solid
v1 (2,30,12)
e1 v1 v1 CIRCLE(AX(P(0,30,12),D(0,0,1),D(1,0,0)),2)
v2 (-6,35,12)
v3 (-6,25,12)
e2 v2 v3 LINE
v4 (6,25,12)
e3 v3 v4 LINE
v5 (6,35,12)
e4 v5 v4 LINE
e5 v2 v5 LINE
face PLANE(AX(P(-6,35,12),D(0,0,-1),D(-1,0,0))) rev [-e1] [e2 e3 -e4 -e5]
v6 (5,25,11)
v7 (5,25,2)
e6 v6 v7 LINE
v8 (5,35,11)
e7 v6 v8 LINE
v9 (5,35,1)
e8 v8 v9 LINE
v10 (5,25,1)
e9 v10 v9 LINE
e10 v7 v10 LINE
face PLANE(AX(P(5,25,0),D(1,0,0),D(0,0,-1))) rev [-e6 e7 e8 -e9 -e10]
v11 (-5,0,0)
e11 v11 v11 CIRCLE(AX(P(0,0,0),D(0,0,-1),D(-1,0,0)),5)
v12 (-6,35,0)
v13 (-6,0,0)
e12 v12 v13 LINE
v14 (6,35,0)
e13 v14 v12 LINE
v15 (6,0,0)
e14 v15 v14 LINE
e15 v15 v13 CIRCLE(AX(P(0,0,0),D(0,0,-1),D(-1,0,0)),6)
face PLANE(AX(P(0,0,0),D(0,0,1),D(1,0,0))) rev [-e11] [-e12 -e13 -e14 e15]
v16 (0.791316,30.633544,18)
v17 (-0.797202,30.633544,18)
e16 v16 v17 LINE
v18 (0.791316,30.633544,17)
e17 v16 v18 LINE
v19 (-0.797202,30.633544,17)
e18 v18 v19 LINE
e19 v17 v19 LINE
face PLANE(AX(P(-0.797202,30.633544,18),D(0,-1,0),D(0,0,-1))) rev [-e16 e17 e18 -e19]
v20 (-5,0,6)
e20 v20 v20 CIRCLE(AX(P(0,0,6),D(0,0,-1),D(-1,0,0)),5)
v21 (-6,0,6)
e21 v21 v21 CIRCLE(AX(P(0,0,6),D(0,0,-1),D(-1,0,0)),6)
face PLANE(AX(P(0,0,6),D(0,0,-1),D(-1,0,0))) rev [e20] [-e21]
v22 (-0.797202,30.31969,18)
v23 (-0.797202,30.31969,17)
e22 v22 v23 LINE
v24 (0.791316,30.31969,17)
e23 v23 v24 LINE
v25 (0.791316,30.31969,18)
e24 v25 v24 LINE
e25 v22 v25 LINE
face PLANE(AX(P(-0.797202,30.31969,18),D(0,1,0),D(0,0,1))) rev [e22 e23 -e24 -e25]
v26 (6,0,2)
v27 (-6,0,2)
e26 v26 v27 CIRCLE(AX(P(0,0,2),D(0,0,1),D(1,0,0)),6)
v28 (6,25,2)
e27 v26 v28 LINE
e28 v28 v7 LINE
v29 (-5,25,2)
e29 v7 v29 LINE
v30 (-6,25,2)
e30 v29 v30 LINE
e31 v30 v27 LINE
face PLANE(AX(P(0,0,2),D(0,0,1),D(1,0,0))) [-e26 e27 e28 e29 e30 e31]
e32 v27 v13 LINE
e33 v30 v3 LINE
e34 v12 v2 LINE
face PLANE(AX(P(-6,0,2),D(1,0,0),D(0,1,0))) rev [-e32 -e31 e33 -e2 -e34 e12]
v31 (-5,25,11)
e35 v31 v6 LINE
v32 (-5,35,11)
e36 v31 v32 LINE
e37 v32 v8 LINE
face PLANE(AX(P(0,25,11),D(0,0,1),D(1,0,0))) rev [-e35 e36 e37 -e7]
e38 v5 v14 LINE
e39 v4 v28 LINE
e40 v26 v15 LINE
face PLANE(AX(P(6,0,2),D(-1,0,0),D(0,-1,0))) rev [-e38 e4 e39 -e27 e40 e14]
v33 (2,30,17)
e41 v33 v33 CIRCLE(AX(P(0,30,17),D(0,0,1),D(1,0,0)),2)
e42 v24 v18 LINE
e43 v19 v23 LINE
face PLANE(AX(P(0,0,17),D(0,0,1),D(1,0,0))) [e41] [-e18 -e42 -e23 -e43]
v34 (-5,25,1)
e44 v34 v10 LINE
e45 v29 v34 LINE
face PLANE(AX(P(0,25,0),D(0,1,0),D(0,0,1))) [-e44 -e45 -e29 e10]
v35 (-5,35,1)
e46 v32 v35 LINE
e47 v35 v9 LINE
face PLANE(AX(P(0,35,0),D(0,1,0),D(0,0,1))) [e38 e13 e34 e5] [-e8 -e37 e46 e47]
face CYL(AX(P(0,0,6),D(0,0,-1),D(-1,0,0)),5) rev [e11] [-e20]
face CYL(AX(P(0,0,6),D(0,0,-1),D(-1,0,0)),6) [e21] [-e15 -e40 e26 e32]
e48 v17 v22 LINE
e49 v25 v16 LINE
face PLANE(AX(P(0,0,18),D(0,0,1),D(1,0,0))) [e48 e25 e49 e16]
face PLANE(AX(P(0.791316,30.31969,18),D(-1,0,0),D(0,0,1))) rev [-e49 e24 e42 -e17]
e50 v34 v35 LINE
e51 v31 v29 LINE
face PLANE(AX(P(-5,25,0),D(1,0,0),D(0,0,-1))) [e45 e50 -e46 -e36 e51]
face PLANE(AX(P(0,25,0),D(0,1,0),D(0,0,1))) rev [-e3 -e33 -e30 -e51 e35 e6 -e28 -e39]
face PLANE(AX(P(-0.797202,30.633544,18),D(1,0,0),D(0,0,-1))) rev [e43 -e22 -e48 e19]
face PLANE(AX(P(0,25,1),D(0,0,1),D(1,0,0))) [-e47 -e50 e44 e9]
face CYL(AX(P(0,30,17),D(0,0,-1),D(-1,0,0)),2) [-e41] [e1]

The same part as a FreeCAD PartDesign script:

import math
import FreeCAD as App
import Part
import Sketcher
from FreeCAD import Vector

doc = App.newDocument("Part")
body = doc.addObject("PartDesign::Body", "Body")

sketch1 = body.newObject("Sketcher::SketchObject", "Sketch")
sketch1.AttachmentSupport = (doc.getObject("XY_Plane"), [""])
sketch1.MapMode = "FlatFace"
sketch1.addGeometry([
    Part.ArcOfCircle(Part.Circle(Vector(0, 0, 0), Vector(0, 0, 1), 6), math.radians(0), math.radians(180)),
    Part.LineSegment(Vector(6, 0, 0), Vector(6, 25, 0)),
    Part.LineSegment(Vector(6, 25, 0), Vector(-6, 25, 0)),
    Part.LineSegment(Vector(-6, 25, 0), Vector(-6, 0, 0)),
], False)
sketch1.addConstraint([
    Sketcher.Constraint("Tangent", 0, 1, 1, 1),
    Sketcher.Constraint("Coincident", 1, 2, 2, 1),
    Sketcher.Constraint("Coincident", 2, 2, 3, 1),
    Sketcher.Constraint("Tangent", 3, 2, 0, 2),
    Sketcher.Constraint("Vertical", 1),
    Sketcher.Constraint("Horizontal", 2),
    Sketcher.Constraint("Vertical", 3),
    Sketcher.Constraint("Coincident", 0, 3, -1, 1),
    Sketcher.Constraint("Radius", 0, 6.0),
    Sketcher.Constraint("DistanceY", 1, 1, 1, 2, 25.0),
])
pad1 = body.newObject("PartDesign::Pad", "Pad")
pad1.Profile = sketch1
pad1.Length = 2

sketch2 = body.newObject("Sketcher::SketchObject", "Sketch001")
sketch2.AttachmentSupport = (doc.getObject("XY_Plane"), [""])
sketch2.MapMode = "FlatFace"
sketch2.addGeometry([
    Part.Circle(Vector(0, 0, 0), Vector(0, 0, 1), 6),
    Part.Circle(Vector(0, 0, 0), Vector(0, 0, 1), 5),
], False)
sketch2.addConstraint([
    Sketcher.Constraint("Coincident", 0, 3, -1, 1),
    Sketcher.Constraint("Coincident", 1, 3, -1, 1),
    Sketcher.Constraint("Diameter", 0, 12.0),
    Sketcher.Constraint("Diameter", 1, 10.0),
])
pad2 = body.newObject("PartDesign::Pad", "Pad001")
pad2.Profile = sketch2
pad2.Length = 6

sketch3 = body.newObject("Sketcher::SketchObject", "Sketch002")
sketch3.AttachmentSupport = (doc.getObject("XZ_Plane"), [""])
sketch3.MapMode = "FlatFace"
sketch3.AttachmentOffset = App.Placement(Vector(0, 0, -25), App.Rotation())
sketch3.addGeometry([
    Part.LineSegment(Vector(-6, 0, 0), Vector(-6, 12, 0)),
    Part.LineSegment(Vector(-6, 12, 0), Vector(6, 12, 0)),
    Part.LineSegment(Vector(6, 12, 0), Vector(6, 0, 0)),
    Part.LineSegment(Vector(6, 0, 0), Vector(-6, 0, 0)),
], False)
sketch3.addConstraint([
    Sketcher.Constraint("Coincident", 0, 2, 1, 1),
    Sketcher.Constraint("Coincident", 1, 2, 2, 1),
    Sketcher.Constraint("Coincident", 2, 2, 3, 1),
    Sketcher.Constraint("Coincident", 3, 2, 0, 1),
    Sketcher.Constraint("Vertical", 0),
    Sketcher.Constraint("Horizontal", 1),
    Sketcher.Constraint("Vertical", 2),
    Sketcher.Constraint("Horizontal", 3),
    Sketcher.Constraint("Symmetric", 2, 2, 3, 2, -1, 1),
    Sketcher.Constraint("Equal", 3, 0),
    Sketcher.Constraint("DistanceX", 1, 1, 1, 2, 12.0),
])
pad3 = body.newObject("PartDesign::Pad", "Pad002")
pad3.Profile = sketch3
pad3.Length = 10
pad3.Reversed = True

sketch4 = body.newObject("Sketcher::SketchObject", "Sketch003")
sketch4.AttachmentSupport = (doc.getObject("XZ_Plane"), [""])
sketch4.MapMode = "FlatFace"
sketch4.AttachmentOffset = App.Placement(Vector(0, 0, -35), App.Rotation())
sketch4.addGeometry([
    Part.LineSegment(Vector(5, 1, 0), Vector(-5, 1, 0)),
    Part.LineSegment(Vector(-5, 1, 0), Vector(-5, 11, 0)),
    Part.LineSegment(Vector(-5, 11, 0), Vector(5, 11, 0)),
    Part.LineSegment(Vector(5, 11, 0), Vector(5, 1, 0)),
], False)
sketch4.addConstraint([
    Sketcher.Constraint("Coincident", 0, 2, 1, 1),
    Sketcher.Constraint("Coincident", 1, 2, 2, 1),
    Sketcher.Constraint("Coincident", 2, 2, 3, 1),
    Sketcher.Constraint("Coincident", 3, 2, 0, 1),
    Sketcher.Constraint("Horizontal", 0),
    Sketcher.Constraint("Vertical", 1),
    Sketcher.Constraint("Horizontal", 2),
    Sketcher.Constraint("Vertical", 3),
    Sketcher.Constraint("Equal", 2, 1),
    Sketcher.Constraint("DistanceX", 0, 2, 0, 1, 10.0),
    Sketcher.Constraint("DistanceX", 0, 2, -1, 1, 5.0),
    Sketcher.Constraint("DistanceY", -1, 1, 0, 2, 1.0),
])
pocket1 = body.newObject("PartDesign::Pocket", "Pocket")
pocket1.Profile = sketch4
pocket1.Length = 10
pocket1.Reversed = True

sketch5 = body.newObject("Sketcher::SketchObject", "Sketch004")
sketch5.AttachmentSupport = (doc.getObject("XY_Plane"), [""])
sketch5.MapMode = "FlatFace"
sketch5.AttachmentOffset = App.Placement(Vector(0, 0, 12), App.Rotation())
sketch5.addGeometry([
    Part.ArcOfCircle(Part.Circle(Vector(0, 30, 0), Vector(0, 0, 1), 2), math.radians(0), math.radians(140.194429)),
    Part.ArcOfCircle(Part.Circle(Vector(0, 30, 0), Vector(0, 0, 1), 2), math.radians(140.194429), math.radians(320.194429)),
    Part.ArcOfCircle(Part.Circle(Vector(0, 30, 0), Vector(0, 0, 1), 2), math.radians(-39.805571), math.radians(0)),
], False)
sketch5.addConstraint([
    Sketcher.Constraint("Tangent", 0, 2, 1, 1),
    Sketcher.Constraint("Tangent", 1, 2, 2, 1),
    Sketcher.Constraint("Tangent", 2, 2, 0, 1),
    Sketcher.Constraint("PointOnObject", 0, 3, -2),
    Sketcher.Constraint("Horizontal", 1, 3, 2, 2),
    Sketcher.Constraint("Radius", 0, 2.0),
    Sketcher.Constraint("DistanceY", -1, 1, 0, 3, 30.0),
    Sketcher.Constraint("DistanceY", -1, 1, 0, 2, 31.280369),
    Sketcher.Constraint("DistanceY", -1, 1, 1, 2, 28.719631),
])
pad4 = body.newObject("PartDesign::Pad", "Pad003")
pad4.Profile = sketch5
pad4.Length = 5

sketch6 = body.newObject("Sketcher::SketchObject", "Sketch005")
sketch6.AttachmentSupport = (doc.getObject("XY_Plane"), [""])
sketch6.MapMode = "FlatFace"
sketch6.AttachmentOffset = App.Placement(Vector(0, 0, 17), App.Rotation())
sketch6.addGeometry([
    Part.LineSegment(Vector(-0.797202, 30.633544, 0), Vector(-0.797202, 30.31969, 0)),
    Part.LineSegment(Vector(-0.797202, 30.31969, 0), Vector(0.791316, 30.31969, 0)),
    Part.LineSegment(Vector(0.791316, 30.31969, 0), Vector(0.791316, 30.633544, 0)),
    Part.LineSegment(Vector(0.791316, 30.633544, 0), Vector(-0.797202, 30.633544, 0)),
], False)
sketch6.addConstraint([
    Sketcher.Constraint("Coincident", 0, 2, 1, 1),
    Sketcher.Constraint("Coincident", 1, 2, 2, 1),
    Sketcher.Constraint("Coincident", 2, 2, 3, 1),
    Sketcher.Constraint("Coincident", 3, 2, 0, 1),
    Sketcher.Constraint("Vertical", 0),
    Sketcher.Constraint("Horizontal", 1),
    Sketcher.Constraint("Vertical", 2),
    Sketcher.Constraint("Horizontal", 3),
    Sketcher.Constraint("DistanceX", 1, 1, 1, 2, 1.588518),
    Sketcher.Constraint("DistanceY", 0, 2, 0, 1, 0.313854),
    Sketcher.Constraint("DistanceY", -1, 1, 0, 2, 30.31969),
    Sketcher.Constraint("DistanceX", 0, 2, -1, 1, 0.797202),
])
pad5 = body.newObject("PartDesign::Pad", "Pad004")
pad5.Profile = sketch6
pad5.Length = 1

doc.recompute()
